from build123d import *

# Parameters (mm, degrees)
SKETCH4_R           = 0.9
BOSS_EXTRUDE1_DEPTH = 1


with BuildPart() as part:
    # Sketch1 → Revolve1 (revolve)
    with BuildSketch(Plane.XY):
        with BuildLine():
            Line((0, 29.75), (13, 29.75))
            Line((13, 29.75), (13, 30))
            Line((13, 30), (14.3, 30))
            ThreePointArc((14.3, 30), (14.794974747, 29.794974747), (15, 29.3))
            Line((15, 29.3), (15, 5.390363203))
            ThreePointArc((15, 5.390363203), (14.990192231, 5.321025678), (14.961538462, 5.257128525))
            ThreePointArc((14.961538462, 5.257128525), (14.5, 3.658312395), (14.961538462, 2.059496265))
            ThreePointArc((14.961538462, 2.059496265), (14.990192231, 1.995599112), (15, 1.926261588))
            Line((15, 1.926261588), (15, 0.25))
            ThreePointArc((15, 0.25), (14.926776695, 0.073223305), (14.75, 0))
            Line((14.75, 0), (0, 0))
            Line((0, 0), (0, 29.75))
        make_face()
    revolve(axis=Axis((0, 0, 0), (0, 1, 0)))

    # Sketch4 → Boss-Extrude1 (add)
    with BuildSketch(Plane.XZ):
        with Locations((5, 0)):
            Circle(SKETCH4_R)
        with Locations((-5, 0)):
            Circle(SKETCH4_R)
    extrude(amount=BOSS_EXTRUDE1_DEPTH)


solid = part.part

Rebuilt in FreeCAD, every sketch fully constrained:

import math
import FreeCAD as App
import Part
import Sketcher

V = App.Vector
Q = App.Units.Quantity

doc = App.newDocument("Part")
body = doc.addObject("PartDesign::Body", "Body")

# Sketch on XY plane
sketch1 = body.newObject("Sketcher::SketchObject", "Sketch")
sketch1.AttachmentSupport = (doc.getObject("XY_Plane"), [""])
sketch1.MapMode = "FlatFace"
sketch1.addGeometry([
    Part.LineSegment(V(13, 29.75, 0), V(0, 29.75, 0)),  # 0
    Part.LineSegment(V(0, 29.75, 0), V(0, 0, 0)),  # 1
    Part.LineSegment(V(0, 0, 0), V(14.75, 0, 0)),  # 2
    Part.ArcOfCircle(Part.Circle(V(14.75, 0.25, 0), V(0, 0, 1), 0.25), math.radians(-90), math.radians(0)),  # 3
    Part.LineSegment(V(15, 0.25, 0), V(15, 1.93, 0)),  # 4
    Part.ArcOfCircle(Part.Circle(V(14.75, 1.93, 0), V(0, 0, 1), 0.25), math.radians(0), math.radians(32)),  # 5
    Part.ArcOfCircle(Part.Circle(V(17.5, 3.66, 0), V(0, 0, 1), 3), math.radians(148), math.radians(212)),  # 6
    Part.ArcOfCircle(Part.Circle(V(14.75, 5.39, 0), V(0, 0, 1), 0.25), math.radians(-32), math.radians(0)),  # 7
    Part.LineSegment(V(15, 5.39, 0), V(15, 29.3, 0)),  # 8
    Part.ArcOfCircle(Part.Circle(V(14.3, 29.3, 0), V(0, 0, 1), 0.7), math.radians(0), math.radians(90)),  # 9
    Part.LineSegment(V(14.3, 30, 0), V(13, 30, 0)),  # 10
    Part.LineSegment(V(13, 30, 0), V(13, 29.75, 0)),  # 11
], False)
sketch1.addConstraint([
    Sketcher.Constraint("Coincident", 0, 2, 1, 1),
    Sketcher.Constraint("Coincident", 1, 2, 2, 1),
    Sketcher.Constraint("Tangent", 2, 2, 3, 1),
    Sketcher.Constraint("Tangent", 3, 2, 4, 1),
    Sketcher.Constraint("Tangent", 4, 2, 5, 1),
    Sketcher.Constraint("Tangent", 5, 2, 6, 2),
    Sketcher.Constraint("Tangent", 6, 1, 7, 1),
    Sketcher.Constraint("Tangent", 7, 2, 8, 1),
    Sketcher.Constraint("Tangent", 8, 2, 9, 1),
    Sketcher.Constraint("Tangent", 9, 2, 10, 1),
    Sketcher.Constraint("Coincident", 10, 2, 11, 1),
    Sketcher.Constraint("Coincident", 11, 2, 0, 1),
    Sketcher.Constraint("Horizontal", 0),
    Sketcher.Constraint("Vertical", 1),
    Sketcher.Constraint("Horizontal", 2),
    Sketcher.Constraint("Vertical", 4),
    Sketcher.Constraint("Vertical", 8),
    Sketcher.Constraint("Horizontal", 10),
    Sketcher.Constraint("Vertical", 11),
    Sketcher.Constraint("Coincident", 1, 2, -1, 1),
    Sketcher.Constraint("Equal", 3, 5),
    Sketcher.Constraint("Equal", 5, 7),
    Sketcher.Constraint("Vertical", 5, 3, 7, 3),
    Sketcher.Constraint("Radius", 6, Q("3 mm")),
    Sketcher.Constraint("Radius", 9, Q("0.7 mm")),
    Sketcher.Constraint("DistanceX", 0, 2, 0, 1, Q("13 mm")),
    Sketcher.Constraint("Radius", 3, Q("0.25 mm")),
    Sketcher.Constraint("DistanceX", 10, 2, 10, 1, Q("1.3 mm")),
    Sketcher.Constraint("DistanceY", -1, 1, 9, 2, Q("30 mm")),
    Sketcher.Constraint("DistanceY", 1, 2, 1, 1, Q("29.75 mm")),
    Sketcher.Constraint("DistanceX", -1, 1, 6, 3, Q("17.5 mm")),
    Sketcher.Constraint("DistanceY", 4, 1, 4, 2, Q("1.676262 mm")),
])
revolution = body.newObject("PartDesign::Revolution", "Revolution")
revolution.Profile = sketch1
revolution.ReferenceAxis = (sketch1, ["V_Axis"])
revolution.Angle = 360

# Sketch on XZ plane
sketch2 = body.newObject("Sketcher::SketchObject", "Sketch001")
sketch2.AttachmentSupport = (doc.getObject("XZ_Plane"), [""])
sketch2.MapMode = "FlatFace"
sketch2.addGeometry([
    Part.Circle(V(5, 0, 0), V(0, 0, 1), 0.9),
    Part.Circle(V(-5, 0, 0), V(0, 0, 1), 0.9),
], False)
sketch2.addConstraint([
    Sketcher.Constraint("Equal", 0, 1),
    Sketcher.Constraint("Symmetric", 0, 3, 1, 3, -1, 1),
    Sketcher.Constraint("PointOnObject", 0, 3, -1),
    Sketcher.Constraint("Diameter", 0, Q("1.8 mm")),
    Sketcher.Constraint("DistanceX", -1, 1, 0, 3, Q("5 mm")),
])
pad1 = body.newObject("PartDesign::Pad", "Pad")
pad1.Profile = sketch2
pad1.Length = 1

doc.recompute()
